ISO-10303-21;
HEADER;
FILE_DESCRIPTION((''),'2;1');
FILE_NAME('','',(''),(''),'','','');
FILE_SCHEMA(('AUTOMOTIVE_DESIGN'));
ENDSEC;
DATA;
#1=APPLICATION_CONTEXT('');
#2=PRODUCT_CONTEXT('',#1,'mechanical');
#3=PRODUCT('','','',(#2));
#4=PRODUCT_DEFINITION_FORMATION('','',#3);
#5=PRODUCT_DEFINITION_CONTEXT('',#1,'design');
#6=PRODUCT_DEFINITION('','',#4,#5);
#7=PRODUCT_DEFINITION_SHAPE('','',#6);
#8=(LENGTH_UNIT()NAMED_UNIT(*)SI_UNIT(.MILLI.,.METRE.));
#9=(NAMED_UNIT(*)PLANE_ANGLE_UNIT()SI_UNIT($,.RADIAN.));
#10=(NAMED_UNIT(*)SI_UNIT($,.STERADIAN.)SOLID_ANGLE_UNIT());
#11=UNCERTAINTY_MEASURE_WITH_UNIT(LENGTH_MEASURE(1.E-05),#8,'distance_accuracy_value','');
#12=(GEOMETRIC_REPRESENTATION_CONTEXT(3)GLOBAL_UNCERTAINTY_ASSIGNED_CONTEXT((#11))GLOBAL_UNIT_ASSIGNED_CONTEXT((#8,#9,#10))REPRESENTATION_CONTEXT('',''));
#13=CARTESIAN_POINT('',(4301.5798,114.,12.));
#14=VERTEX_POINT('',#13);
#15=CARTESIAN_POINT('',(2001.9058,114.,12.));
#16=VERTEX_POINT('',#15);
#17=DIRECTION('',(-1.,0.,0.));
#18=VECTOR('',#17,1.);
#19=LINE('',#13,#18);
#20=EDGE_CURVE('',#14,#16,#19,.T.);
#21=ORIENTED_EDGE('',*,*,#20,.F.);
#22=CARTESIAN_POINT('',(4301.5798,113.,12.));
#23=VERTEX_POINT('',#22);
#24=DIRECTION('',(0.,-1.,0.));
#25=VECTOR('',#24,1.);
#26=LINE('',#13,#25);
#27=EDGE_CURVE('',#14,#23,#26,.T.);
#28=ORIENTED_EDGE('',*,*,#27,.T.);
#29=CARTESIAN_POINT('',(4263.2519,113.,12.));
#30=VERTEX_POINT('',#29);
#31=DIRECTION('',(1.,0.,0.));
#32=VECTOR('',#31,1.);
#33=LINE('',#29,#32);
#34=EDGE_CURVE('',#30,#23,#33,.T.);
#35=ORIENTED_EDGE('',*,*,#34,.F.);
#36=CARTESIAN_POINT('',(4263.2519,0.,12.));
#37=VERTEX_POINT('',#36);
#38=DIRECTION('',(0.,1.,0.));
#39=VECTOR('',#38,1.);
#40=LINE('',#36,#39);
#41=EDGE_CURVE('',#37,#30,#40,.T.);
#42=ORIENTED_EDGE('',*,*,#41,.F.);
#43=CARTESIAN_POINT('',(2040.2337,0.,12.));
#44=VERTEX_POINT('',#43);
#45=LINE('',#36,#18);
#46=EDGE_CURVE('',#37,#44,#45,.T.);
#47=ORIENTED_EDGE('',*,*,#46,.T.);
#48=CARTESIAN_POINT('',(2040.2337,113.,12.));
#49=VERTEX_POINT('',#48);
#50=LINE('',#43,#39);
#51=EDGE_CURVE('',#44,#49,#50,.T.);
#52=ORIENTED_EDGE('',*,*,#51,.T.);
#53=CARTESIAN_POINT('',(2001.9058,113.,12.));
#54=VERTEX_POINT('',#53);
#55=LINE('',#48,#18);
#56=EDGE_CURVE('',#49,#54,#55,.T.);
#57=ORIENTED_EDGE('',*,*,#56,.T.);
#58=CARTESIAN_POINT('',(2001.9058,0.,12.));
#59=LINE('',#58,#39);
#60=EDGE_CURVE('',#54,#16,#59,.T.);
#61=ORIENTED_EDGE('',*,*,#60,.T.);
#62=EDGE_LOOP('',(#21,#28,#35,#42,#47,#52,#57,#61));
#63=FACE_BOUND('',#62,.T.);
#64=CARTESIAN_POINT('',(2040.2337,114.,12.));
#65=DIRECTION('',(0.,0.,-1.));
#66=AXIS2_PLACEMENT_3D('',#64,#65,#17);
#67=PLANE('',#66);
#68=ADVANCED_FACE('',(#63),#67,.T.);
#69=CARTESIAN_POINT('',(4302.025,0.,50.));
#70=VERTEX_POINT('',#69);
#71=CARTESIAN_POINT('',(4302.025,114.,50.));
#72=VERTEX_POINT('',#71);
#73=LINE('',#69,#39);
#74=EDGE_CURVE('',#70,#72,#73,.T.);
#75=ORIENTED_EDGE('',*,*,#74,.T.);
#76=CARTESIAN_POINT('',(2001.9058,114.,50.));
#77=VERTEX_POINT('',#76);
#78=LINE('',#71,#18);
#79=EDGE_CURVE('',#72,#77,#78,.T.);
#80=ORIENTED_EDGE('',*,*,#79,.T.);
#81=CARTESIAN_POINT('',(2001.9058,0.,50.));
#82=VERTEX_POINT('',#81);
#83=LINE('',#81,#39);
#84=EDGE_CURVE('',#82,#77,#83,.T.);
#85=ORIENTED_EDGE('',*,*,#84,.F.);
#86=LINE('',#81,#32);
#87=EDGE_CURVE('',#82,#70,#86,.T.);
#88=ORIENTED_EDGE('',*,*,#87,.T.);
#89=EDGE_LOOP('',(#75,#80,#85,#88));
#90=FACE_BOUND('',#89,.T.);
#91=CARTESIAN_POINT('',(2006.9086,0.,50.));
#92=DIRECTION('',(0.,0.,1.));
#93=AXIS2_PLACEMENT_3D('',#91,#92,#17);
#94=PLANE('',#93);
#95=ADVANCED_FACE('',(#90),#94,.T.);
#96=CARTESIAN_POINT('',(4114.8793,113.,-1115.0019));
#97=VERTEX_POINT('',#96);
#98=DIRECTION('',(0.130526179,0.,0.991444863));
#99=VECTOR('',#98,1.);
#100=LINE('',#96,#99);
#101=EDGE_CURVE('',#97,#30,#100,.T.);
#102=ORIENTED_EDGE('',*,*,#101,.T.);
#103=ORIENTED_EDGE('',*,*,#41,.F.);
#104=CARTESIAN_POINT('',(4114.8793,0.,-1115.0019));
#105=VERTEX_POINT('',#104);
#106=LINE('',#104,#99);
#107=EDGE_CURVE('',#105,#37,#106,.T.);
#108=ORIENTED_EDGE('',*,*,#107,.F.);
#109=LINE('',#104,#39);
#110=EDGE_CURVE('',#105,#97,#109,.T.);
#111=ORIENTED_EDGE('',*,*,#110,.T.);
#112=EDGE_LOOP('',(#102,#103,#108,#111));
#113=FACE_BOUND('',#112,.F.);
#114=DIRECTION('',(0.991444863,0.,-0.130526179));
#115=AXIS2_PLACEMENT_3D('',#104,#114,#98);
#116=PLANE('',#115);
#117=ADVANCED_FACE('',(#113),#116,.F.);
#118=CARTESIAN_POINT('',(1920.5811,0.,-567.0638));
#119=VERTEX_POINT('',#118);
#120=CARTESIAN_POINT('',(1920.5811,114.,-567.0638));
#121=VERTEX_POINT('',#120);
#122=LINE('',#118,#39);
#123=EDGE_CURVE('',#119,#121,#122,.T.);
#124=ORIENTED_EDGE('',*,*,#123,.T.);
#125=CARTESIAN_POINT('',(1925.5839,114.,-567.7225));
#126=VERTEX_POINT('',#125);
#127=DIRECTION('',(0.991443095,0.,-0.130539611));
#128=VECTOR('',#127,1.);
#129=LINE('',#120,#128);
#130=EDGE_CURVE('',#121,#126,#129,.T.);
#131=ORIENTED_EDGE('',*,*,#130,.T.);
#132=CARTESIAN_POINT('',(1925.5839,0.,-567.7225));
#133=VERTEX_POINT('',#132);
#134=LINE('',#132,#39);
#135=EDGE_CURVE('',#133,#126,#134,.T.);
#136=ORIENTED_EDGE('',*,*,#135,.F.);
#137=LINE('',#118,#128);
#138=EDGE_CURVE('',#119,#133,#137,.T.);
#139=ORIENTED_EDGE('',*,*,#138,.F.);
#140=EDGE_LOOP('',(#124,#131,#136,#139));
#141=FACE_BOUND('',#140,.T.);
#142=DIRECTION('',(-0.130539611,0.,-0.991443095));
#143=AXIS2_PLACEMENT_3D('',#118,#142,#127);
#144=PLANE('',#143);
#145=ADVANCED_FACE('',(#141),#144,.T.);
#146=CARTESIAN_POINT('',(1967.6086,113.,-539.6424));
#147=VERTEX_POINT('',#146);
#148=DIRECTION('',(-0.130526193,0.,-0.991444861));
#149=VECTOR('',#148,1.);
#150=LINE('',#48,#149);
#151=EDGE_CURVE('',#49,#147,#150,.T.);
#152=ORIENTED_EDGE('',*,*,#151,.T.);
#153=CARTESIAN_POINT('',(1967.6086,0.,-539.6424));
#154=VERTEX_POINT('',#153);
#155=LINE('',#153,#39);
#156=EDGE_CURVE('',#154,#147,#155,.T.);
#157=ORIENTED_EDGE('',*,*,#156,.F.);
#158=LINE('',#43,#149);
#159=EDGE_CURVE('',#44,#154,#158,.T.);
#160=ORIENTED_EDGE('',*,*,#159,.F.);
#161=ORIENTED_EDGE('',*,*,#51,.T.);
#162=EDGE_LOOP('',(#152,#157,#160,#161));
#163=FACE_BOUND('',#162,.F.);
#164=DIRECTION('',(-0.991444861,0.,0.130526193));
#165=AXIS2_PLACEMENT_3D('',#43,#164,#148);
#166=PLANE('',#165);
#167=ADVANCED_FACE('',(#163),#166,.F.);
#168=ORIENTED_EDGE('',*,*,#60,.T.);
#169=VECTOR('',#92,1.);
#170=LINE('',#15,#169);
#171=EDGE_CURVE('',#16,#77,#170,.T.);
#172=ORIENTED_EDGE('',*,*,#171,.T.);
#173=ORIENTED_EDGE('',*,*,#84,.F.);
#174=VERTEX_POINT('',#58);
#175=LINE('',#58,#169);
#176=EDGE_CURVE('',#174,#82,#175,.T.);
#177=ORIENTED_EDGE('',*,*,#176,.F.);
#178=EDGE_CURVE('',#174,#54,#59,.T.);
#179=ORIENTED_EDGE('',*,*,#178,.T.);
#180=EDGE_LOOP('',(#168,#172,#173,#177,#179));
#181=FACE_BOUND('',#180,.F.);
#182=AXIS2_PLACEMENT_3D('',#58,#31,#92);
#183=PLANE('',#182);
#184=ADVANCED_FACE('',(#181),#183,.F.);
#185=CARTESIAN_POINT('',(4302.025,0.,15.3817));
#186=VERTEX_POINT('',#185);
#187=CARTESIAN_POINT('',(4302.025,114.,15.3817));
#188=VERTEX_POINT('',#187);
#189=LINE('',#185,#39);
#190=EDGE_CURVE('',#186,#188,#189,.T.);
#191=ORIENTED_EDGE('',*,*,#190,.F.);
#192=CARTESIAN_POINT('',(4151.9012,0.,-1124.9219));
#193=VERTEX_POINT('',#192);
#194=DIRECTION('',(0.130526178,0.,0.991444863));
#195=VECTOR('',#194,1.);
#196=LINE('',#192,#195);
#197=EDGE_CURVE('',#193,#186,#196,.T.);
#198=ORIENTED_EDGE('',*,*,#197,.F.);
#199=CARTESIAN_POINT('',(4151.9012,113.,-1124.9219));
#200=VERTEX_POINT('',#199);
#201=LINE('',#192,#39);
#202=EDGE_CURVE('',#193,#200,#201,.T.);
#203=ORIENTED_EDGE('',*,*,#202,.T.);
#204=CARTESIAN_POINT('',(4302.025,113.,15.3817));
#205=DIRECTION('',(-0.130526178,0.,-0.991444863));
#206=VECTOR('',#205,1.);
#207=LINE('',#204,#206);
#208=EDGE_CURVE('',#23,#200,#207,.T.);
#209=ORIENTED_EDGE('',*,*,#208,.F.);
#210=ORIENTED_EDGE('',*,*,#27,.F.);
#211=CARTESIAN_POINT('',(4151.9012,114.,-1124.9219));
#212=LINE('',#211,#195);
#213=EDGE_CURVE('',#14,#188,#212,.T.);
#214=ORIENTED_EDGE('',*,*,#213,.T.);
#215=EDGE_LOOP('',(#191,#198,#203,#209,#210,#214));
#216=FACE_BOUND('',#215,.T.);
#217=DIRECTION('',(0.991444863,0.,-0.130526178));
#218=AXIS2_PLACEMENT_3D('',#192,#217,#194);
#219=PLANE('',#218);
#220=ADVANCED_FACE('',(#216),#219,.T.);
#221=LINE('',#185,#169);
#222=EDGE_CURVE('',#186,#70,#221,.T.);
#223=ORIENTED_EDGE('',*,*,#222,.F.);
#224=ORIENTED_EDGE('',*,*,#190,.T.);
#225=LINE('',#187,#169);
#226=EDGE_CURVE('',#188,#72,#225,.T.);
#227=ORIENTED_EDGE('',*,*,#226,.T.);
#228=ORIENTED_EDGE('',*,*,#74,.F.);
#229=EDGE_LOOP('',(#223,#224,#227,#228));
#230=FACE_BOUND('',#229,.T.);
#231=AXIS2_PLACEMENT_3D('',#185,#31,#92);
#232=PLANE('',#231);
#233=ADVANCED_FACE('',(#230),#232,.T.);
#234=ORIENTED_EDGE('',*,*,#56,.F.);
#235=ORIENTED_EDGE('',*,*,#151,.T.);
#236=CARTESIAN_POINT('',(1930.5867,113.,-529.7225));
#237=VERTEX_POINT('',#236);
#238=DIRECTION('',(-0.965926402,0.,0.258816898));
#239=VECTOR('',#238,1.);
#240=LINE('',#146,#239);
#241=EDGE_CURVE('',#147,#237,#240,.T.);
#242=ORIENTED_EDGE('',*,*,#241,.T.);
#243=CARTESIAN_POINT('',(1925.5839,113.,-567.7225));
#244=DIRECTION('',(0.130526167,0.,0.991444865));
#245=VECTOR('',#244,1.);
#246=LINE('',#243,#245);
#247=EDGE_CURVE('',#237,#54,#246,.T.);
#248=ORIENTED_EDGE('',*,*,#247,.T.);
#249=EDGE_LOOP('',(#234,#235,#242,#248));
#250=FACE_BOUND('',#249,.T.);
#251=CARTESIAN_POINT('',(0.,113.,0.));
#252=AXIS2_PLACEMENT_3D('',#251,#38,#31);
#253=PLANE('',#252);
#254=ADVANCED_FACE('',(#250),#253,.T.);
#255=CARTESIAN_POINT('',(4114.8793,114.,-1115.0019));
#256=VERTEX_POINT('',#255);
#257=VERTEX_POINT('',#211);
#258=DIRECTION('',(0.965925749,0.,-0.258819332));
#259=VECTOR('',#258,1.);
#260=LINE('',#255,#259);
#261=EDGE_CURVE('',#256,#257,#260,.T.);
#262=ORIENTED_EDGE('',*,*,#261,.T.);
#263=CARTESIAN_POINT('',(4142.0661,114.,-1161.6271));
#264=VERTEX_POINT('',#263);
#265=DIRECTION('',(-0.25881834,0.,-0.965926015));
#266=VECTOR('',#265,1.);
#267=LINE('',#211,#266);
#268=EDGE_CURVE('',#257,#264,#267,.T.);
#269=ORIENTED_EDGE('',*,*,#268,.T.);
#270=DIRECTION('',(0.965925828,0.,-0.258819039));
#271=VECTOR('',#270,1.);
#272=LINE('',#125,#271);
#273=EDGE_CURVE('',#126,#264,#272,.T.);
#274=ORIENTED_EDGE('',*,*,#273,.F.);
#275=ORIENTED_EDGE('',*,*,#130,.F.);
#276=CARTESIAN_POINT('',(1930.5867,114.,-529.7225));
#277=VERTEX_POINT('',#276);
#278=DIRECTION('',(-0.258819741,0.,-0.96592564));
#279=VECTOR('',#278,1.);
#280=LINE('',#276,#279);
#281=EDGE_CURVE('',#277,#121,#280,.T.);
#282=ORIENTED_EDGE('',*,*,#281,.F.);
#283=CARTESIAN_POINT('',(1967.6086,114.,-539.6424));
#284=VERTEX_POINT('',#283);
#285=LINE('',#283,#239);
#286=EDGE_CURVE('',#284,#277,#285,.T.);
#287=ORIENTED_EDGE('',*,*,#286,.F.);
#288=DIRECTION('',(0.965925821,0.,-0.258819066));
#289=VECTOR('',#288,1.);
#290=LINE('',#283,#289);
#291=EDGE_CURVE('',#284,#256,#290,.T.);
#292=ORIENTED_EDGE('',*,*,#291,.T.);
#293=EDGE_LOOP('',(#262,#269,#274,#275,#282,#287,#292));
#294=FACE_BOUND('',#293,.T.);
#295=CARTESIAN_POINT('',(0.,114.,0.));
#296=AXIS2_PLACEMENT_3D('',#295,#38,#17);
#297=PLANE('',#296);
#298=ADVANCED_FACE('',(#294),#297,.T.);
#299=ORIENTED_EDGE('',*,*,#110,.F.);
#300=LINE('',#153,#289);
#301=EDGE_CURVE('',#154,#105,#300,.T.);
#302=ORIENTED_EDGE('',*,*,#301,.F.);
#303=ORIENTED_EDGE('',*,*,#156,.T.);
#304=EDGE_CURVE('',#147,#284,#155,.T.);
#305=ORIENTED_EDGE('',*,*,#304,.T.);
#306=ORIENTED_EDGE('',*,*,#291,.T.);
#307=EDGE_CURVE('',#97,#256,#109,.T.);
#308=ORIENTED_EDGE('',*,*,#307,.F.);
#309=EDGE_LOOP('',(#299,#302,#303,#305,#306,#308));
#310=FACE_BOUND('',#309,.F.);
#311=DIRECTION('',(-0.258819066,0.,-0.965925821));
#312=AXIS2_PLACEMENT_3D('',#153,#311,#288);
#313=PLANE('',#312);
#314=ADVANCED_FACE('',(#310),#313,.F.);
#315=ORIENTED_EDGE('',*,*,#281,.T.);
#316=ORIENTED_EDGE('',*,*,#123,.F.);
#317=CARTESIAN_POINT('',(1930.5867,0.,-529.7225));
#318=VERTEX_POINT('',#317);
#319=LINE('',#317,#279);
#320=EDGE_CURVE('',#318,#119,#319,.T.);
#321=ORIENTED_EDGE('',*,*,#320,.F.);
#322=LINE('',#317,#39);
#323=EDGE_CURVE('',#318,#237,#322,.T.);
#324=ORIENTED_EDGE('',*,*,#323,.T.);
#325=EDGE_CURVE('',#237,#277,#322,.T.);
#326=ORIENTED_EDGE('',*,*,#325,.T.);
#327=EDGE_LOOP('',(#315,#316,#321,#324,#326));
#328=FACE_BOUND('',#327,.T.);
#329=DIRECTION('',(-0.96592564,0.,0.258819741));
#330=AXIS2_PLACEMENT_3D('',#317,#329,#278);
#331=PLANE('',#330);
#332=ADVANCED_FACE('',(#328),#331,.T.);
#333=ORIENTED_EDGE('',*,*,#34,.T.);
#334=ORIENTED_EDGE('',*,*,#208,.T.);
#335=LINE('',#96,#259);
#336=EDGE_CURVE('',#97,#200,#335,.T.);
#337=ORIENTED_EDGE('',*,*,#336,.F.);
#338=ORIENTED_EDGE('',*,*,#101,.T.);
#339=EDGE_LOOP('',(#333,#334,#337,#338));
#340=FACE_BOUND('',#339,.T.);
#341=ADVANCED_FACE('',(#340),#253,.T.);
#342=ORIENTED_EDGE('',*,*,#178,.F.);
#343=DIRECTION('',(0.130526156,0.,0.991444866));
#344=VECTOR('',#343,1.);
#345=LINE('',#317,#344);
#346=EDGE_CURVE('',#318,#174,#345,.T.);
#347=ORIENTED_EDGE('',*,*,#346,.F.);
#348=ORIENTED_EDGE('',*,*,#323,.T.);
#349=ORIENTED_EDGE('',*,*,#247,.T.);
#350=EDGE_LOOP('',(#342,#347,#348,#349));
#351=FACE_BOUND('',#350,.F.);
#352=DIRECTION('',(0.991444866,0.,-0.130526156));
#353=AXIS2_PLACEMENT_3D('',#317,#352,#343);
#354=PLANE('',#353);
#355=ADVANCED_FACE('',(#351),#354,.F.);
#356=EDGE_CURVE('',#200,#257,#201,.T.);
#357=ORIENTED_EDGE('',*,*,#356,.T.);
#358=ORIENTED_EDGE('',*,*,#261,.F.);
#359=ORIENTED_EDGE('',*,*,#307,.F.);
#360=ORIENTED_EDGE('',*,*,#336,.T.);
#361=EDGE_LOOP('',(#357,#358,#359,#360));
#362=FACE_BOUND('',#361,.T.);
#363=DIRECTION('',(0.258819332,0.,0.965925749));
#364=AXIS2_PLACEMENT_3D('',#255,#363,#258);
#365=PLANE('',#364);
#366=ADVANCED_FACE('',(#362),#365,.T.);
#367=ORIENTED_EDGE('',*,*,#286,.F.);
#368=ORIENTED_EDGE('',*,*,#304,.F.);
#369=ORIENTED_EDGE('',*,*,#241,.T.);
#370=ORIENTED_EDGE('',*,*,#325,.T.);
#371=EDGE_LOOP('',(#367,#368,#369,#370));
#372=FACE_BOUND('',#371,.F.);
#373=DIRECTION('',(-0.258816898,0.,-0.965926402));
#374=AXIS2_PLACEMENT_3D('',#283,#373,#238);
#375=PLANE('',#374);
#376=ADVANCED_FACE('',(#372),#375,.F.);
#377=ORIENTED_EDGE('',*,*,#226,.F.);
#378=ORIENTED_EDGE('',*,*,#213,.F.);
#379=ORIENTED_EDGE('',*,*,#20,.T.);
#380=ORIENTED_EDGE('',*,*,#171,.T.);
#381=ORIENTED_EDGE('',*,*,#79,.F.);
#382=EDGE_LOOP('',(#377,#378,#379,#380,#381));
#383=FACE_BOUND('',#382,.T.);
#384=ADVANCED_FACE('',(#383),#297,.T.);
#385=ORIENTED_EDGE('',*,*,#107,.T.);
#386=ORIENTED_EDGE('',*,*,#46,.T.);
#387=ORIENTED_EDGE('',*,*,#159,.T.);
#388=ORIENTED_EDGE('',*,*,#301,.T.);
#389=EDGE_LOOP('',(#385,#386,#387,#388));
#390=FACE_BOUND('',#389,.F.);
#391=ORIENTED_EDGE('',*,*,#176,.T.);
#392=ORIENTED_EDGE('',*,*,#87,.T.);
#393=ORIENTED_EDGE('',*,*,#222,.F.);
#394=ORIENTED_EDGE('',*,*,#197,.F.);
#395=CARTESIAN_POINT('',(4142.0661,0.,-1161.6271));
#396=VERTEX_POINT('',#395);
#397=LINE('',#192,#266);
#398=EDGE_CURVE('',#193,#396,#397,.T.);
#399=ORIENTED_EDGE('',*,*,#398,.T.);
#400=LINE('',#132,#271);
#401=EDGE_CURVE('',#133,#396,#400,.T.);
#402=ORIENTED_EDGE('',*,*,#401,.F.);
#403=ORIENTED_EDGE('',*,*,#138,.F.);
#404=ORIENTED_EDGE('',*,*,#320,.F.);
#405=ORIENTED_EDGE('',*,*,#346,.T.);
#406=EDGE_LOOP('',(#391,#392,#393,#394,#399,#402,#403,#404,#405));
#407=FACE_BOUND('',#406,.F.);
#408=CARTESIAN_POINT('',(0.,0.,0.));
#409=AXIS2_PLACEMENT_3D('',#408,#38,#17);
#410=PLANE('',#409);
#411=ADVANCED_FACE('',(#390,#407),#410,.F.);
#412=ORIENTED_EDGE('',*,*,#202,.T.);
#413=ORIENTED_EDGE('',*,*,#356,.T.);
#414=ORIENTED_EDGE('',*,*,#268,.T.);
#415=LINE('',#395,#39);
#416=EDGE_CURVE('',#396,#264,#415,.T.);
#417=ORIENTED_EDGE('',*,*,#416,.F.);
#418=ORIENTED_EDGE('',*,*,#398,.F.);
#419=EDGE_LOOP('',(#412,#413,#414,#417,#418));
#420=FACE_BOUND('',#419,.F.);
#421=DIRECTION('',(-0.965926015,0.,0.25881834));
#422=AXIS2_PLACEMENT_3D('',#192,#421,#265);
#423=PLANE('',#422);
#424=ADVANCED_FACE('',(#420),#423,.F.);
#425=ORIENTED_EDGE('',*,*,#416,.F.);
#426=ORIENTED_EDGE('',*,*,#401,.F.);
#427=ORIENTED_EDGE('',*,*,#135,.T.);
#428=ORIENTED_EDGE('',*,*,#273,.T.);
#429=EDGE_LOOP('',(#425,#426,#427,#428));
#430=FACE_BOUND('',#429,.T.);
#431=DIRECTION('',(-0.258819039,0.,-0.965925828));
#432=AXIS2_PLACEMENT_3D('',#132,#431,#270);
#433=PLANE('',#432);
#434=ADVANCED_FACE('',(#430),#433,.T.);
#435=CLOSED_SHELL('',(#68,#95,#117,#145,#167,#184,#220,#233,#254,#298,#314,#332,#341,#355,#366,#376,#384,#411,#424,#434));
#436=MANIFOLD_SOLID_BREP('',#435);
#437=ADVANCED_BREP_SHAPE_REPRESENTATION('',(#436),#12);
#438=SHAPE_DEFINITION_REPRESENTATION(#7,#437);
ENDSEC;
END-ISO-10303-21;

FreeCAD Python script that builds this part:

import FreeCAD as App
import Part
import Sketcher
Q = App.Units.Quantity


def add_polygon(sketch, points):
    """Adds a closed chain of lines whose ends are joined by coincident constraints."""
    first, n = sketch.GeometryCount, len(points)
    for a, b in zip(points, points[1:] + points[:1]):
        sketch.addGeometry(Part.LineSegment(App.Vector(*a, 0), App.Vector(*b, 0)), False)
    for i in range(n):
        sketch.addConstraint(Sketcher.Constraint("Coincident", first + i, 2, first + (i + 1) % n, 1))

doc = App.newDocument("Part")
body = doc.addObject("PartDesign::Body", "Body")

sketch1 = body.newObject("Sketcher::SketchObject", "Sketch")
sketch1.AttachmentSupport = (doc.getObject("XZ_Plane"), [""])
sketch1.MapMode = "FlatFace"
add_polygon(sketch1, [(2002, 50), (4302, 50), (4302, 15), (4152, -1125), (4142, -1162), (1926, -568), (1921, -567), (1931, -530), (2002, 12)])
add_polygon(sketch1, [(4115, -1115), (4263, 12), (2040, 12), (1968, -540)])
sketch1.addConstraint(Sketcher.Constraint("Horizontal", 0))
sketch1.addConstraint(Sketcher.Constraint("Vertical", 1))
sketch1.addConstraint(Sketcher.Constraint("Vertical", 8))
sketch1.addConstraint(Sketcher.Constraint("Horizontal", 10))
sketch1.addConstraint(Sketcher.Constraint("Perpendicular", 3, 4))
sketch1.addConstraint(Sketcher.Constraint("Perpendicular", 2, 5))
sketch1.addConstraint(Sketcher.Constraint("Perpendicular", 4, 6))
sketch1.addConstraint(Sketcher.Constraint("Perpendicular", 5, 7))
sketch1.addConstraint(Sketcher.Constraint("Parallel", 7, 9))
sketch1.addConstraint(Sketcher.Constraint("Parallel", 9, 11))
sketch1.addConstraint(Sketcher.Constraint("Perpendicular", 6, 12))
sketch1.addConstraint(Sketcher.Constraint("Horizontal", 7, 2, 9, 2))
sketch1.addConstraint(Sketcher.Constraint("DistanceY", 8, 1, 8, 2, Q("38 mm")))
sketch1.addConstraint(Sketcher.Constraint("Angle", 4, Q("165 deg")))
sketch1.addConstraint(Sketcher.Constraint("Distance", 3, Q("38 mm")))
sketch1.addConstraint(Sketcher.Constraint("DistanceY", -1, 1, 0, 2, Q("50 mm")))
sketch1.addConstraint(Sketcher.Constraint("DistanceY", 4, 2, 6, 2, Q("38 mm")))
sketch1.addConstraint(Sketcher.Constraint("Angle", 2, Q("-97.5 deg")))
sketch1.addConstraint(Sketcher.Constraint("DistanceX", 5, 2, 2, 2, Q("2231.32 mm")))
sketch1.addConstraint(Sketcher.Constraint("DistanceY", 11, 2, 6, 2, Q("9.92 mm")))
sketch1.addConstraint(Sketcher.Constraint("DistanceY", 2, 2, 12, 2, Q("9.92 mm")))
sketch1.addConstraint(Sketcher.Constraint("Distance", 5, Q("5.046 mm")))
sketch1.addConstraint(Sketcher.Constraint("Distance", 7, Q("546.397 mm")))
sketch1.addConstraint(Sketcher.Constraint("DistanceX", 0, 1, 0, 2, Q("2300.1192 mm")))
sketch1.addConstraint(Sketcher.Constraint("DistanceX", -1, 1, 0, 2, Q("4302.025 mm")))
sketch1.addConstraint(Sketcher.Constraint("DistanceX", -1, 1, 9, 2, Q("4263.252 mm")))
pad1 = body.newObject("PartDesign::Pad", "Pad")
pad1.Profile = sketch1
pad1.Length = 114
pad1.Reversed = True

sketch2 = body.newObject("Sketcher::SketchObject", "Sketch001")
sketch2.AttachmentSupport = (doc.getObject("XZ_Plane"), [""])
sketch2.MapMode = "FlatFace"
sketch2.AttachmentOffset = App.Placement(App.Vector(0, 0, -114), App.Rotation())
add_polygon(sketch2, [(2002, 12), (2040, 12), (1968, -540), (1931, -530)])
sketch2.addConstraint(Sketcher.Constraint("Horizontal", 0))
sketch2.addConstraint(Sketcher.Constraint("Parallel", 1, 3))
sketch2.addConstraint(Sketcher.Constraint("Angle", 2, Q("165.0001 deg")))
sketch2.addConstraint(Sketcher.Constraint("DistanceY", -1, 1, 0, 2, Q("12 mm")))
sketch2.addConstraint(Sketcher.Constraint("Angle", 1, Q("-97.5 deg")))
sketch2.addConstraint(Sketcher.Constraint("DistanceX", 0, 1, 0, 2, Q("38.328 mm")))
sketch2.addConstraint(Sketcher.Constraint("Distance", 3, Q("546.397 mm")))
sketch2.addConstraint(Sketcher.Constraint("DistanceX", -1, 1, 0, 2, Q("2040.2337 mm")))
pocket1 = body.newObject("PartDesign::Pocket", "Pocket")
pocket1.Profile = sketch2
pocket1.Length = 1
pocket1.Reversed = True

sketch3 = body.newObject("Sketcher::SketchObject", "Sketch002")
sketch3.AttachmentSupport = (doc.getObject("XZ_Plane"), [""])
sketch3.MapMode = "FlatFace"
sketch3.AttachmentOffset = App.Placement(App.Vector(0, 0, -114), App.Rotation())
add_polygon(sketch3, [(4152, -1125), (4115, -1115), (4263, 12), (4302, 12)])
sketch3.addConstraint(Sketcher.Constraint("Horizontal", 2))
sketch3.addConstraint(Sketcher.Constraint("Parallel", 1, 3))
sketch3.addConstraint(Sketcher.Constraint("Angle", 0, Q("165 deg")))
sketch3.addConstraint(Sketcher.Constraint("DistanceY", -1, 1, 1, 2, Q("12 mm")))
sketch3.addConstraint(Sketcher.Constraint("Angle", 1, Q("82.5 deg")))
sketch3.addConstraint(Sketcher.Constraint("DistanceX", 2, 1, 2, 2, Q("38.328 mm")))
sketch3.addConstraint(Sketcher.Constraint("DistanceY", 0, 2, -1, 1, Q("1115.002 mm")))
sketch3.addConstraint(Sketcher.Constraint("DistanceX", -1, 1, 1, 2, Q("4263.252 mm")))
pocket2 = body.newObject("PartDesign::Pocket", "Pocket001")
pocket2.Profile = sketch3
pocket2.Length = 1
pocket2.Reversed = True

doc.recompute()
